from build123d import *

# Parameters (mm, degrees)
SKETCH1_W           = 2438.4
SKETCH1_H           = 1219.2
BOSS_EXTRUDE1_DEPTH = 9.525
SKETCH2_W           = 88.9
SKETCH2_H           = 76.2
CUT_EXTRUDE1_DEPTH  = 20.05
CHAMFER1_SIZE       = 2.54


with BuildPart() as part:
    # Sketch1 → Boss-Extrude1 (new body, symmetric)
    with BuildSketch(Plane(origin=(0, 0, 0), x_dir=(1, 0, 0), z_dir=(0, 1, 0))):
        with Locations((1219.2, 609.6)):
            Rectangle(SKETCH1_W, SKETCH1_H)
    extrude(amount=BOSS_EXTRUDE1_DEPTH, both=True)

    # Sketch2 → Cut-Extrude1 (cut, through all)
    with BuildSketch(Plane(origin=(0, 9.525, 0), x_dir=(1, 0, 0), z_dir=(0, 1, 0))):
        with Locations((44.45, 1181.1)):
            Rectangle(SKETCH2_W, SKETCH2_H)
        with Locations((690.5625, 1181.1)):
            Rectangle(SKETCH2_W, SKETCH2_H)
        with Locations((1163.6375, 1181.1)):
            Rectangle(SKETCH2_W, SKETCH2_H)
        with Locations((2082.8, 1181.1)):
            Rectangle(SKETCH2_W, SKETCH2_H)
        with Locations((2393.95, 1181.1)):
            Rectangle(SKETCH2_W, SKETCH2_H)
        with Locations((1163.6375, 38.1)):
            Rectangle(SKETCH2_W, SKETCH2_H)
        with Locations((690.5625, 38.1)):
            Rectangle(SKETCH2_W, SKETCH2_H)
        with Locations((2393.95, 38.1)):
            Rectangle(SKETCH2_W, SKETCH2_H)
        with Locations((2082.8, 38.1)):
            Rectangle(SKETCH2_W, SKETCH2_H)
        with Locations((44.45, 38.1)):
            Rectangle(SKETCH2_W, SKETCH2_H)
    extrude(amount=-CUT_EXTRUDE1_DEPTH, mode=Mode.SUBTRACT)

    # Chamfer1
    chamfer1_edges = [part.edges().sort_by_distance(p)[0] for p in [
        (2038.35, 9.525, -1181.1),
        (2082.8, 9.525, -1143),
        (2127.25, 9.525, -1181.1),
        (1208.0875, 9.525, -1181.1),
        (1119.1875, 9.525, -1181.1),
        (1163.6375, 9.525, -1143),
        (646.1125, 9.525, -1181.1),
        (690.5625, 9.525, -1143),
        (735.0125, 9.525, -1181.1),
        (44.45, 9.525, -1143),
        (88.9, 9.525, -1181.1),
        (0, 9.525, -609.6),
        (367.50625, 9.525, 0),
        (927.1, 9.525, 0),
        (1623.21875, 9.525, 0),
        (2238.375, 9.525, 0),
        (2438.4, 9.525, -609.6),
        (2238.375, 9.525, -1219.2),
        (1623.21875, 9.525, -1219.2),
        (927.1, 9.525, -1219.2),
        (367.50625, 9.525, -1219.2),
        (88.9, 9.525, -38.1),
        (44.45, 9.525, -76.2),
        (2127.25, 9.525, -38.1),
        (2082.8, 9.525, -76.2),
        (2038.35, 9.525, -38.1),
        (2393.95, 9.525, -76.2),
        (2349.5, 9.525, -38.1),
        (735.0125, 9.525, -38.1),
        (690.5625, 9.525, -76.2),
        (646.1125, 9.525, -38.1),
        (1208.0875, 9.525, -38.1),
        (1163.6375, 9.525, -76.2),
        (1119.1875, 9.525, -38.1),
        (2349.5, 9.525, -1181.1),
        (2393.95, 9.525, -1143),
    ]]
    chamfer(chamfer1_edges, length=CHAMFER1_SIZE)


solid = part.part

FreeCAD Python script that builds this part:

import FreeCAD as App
import Part
import Sketcher

V = App.Vector
Q = App.Units.Quantity


def edges_at(feature, points):
    """Names of the edges that pass closest to the given points."""
    edges = feature.Shape.Edges
    near = lambda p: min(range(len(edges)), key=lambda i: edges[i].distToShape(Part.Vertex(*p))[0])
    return sorted({f"Edge{near(p) + 1}" for p in points})

doc = App.newDocument("Part")
body = doc.addObject("PartDesign::Body", "Body")

# Sketch on XZ plane
sketch1 = body.newObject("Sketcher::SketchObject", "Sketch")
sketch1.AttachmentSupport = (doc.getObject("XZ_Plane"), [""])
sketch1.MapMode = "FlatFace"
sketch1.addGeometry(Part.LineSegment(V(0, -1219, 0), V(0, 0, 0)), False)
sketch1.addGeometry(Part.LineSegment(V(0, 0, 0), V(2438, 0, 0)), False)
sketch1.addGeometry(Part.LineSegment(V(2438, 0, 0), V(2438, -1219, 0)), False)
sketch1.addGeometry(Part.LineSegment(V(2438, -1219, 0), V(0, -1219, 0)), False)
sketch1.addConstraint(Sketcher.Constraint("Coincident", 0, 2, 1, 1))
sketch1.addConstraint(Sketcher.Constraint("Coincident", 1, 2, 2, 1))
sketch1.addConstraint(Sketcher.Constraint("Coincident", 2, 2, 3, 1))
sketch1.addConstraint(Sketcher.Constraint("Coincident", 3, 2, 0, 1))
sketch1.addConstraint(Sketcher.Constraint("Vertical", 0))
sketch1.addConstraint(Sketcher.Constraint("Horizontal", 1))
sketch1.addConstraint(Sketcher.Constraint("Vertical", 2))
sketch1.addConstraint(Sketcher.Constraint("Horizontal", 3))
sketch1.addConstraint(Sketcher.Constraint("Coincident", 0, 2, -1, 1))
sketch1.addConstraint(Sketcher.Constraint("DistanceX", 1, 1, 1, 2, Q("96 in")))
sketch1.addConstraint(Sketcher.Constraint("DistanceY", 0, 1, 0, 2, Q("48 in")))
pad1 = body.newObject("PartDesign::Pad", "Pad")
pad1.Profile = sketch1
pad1.Length = Q("0.75 in")
pad1.Midplane = True

# Sketch on XZ plane
sketch2 = body.newObject("Sketcher::SketchObject", "Sketch001")
sketch2.AttachmentSupport = (doc.getObject("XZ_Plane"), [""])
sketch2.MapMode = "FlatFace"
sketch2.AttachmentOffset = App.Placement(V(0, 0, -0.375 * 25.4), App.Rotation())
sketch2.addGeometry(Part.LineSegment(V(0, -1219, 0), V(0, -1143, 0)), False)
sketch2.addGeometry(Part.LineSegment(V(0, -1143, 0), V(89, -1143, 0)), False)
sketch2.addGeometry(Part.LineSegment(V(89, -1143, 0), V(89, -1219, 0)), False)
sketch2.addGeometry(Part.LineSegment(V(89, -1219, 0), V(0, -1219, 0)), False)
sketch2.addGeometry(Part.LineSegment(V(646, -1219, 0), V(646, -1143, 0)), False)
sketch2.addGeometry(Part.LineSegment(V(646, -1143, 0), V(735, -1143, 0)), False)
sketch2.addGeometry(Part.LineSegment(V(735, -1143, 0), V(735, -1219, 0)), False)
sketch2.addGeometry(Part.LineSegment(V(735, -1219, 0), V(646, -1219, 0)), False)
sketch2.addGeometry(Part.LineSegment(V(1119, -1219, 0), V(1119, -1143, 0)), False)
sketch2.addGeometry(Part.LineSegment(V(1119, -1143, 0), V(1208, -1143, 0)), False)
sketch2.addGeometry(Part.LineSegment(V(1208, -1143, 0), V(1208, -1219, 0)), False)
sketch2.addGeometry(Part.LineSegment(V(1208, -1219, 0), V(1119, -1219, 0)), False)
sketch2.addGeometry(Part.LineSegment(V(2038, -1219, 0), V(2038, -1143, 0)), False)
sketch2.addGeometry(Part.LineSegment(V(2038, -1143, 0), V(2127, -1143, 0)), False)
sketch2.addGeometry(Part.LineSegment(V(2127, -1143, 0), V(2127, -1219, 0)), False)
sketch2.addGeometry(Part.LineSegment(V(2127, -1219, 0), V(2038, -1219, 0)), False)
sketch2.addGeometry(Part.LineSegment(V(2350, -1219, 0), V(2350, -1143, 0)), False)
sketch2.addGeometry(Part.LineSegment(V(2350, -1143, 0), V(2438, -1143, 0)), False)
sketch2.addGeometry(Part.LineSegment(V(2438, -1143, 0), V(2438, -1219, 0)), False)
sketch2.addGeometry(Part.LineSegment(V(2438, -1219, 0), V(2350, -1219, 0)), False)
sketch2.addGeometry(Part.LineSegment(V(1119, -76, 0), V(1119, 0, 0)), False)
sketch2.addGeometry(Part.LineSegment(V(1119, 0, 0), V(1208, 0, 0)), False)
sketch2.addGeometry(Part.LineSegment(V(1208, 0, 0), V(1208, -76, 0)), False)
sketch2.addGeometry(Part.LineSegment(V(1208, -76, 0), V(1119, -76, 0)), False)
sketch2.addGeometry(Part.LineSegment(V(646, -76, 0), V(646, 0, 0)), False)
sketch2.addGeometry(Part.LineSegment(V(646, 0, 0), V(735, 0, 0)), False)
sketch2.addGeometry(Part.LineSegment(V(735, 0, 0), V(735, -76, 0)), False)
sketch2.addGeometry(Part.LineSegment(V(735, -76, 0), V(646, -76, 0)), False)
sketch2.addGeometry(Part.LineSegment(V(2350, -76, 0), V(2350, 0, 0)), False)
sketch2.addGeometry(Part.LineSegment(V(2350, 0, 0), V(2438, 0, 0)), False)
sketch2.addGeometry(Part.LineSegment(V(2438, 0, 0), V(2438, -76, 0)), False)
sketch2.addGeometry(Part.LineSegment(V(2438, -76, 0), V(2350, -76, 0)), False)
sketch2.addGeometry(Part.LineSegment(V(2038, -76, 0), V(2038, 0, 0)), False)
sketch2.addGeometry(Part.LineSegment(V(2038, 0, 0), V(2127, 0, 0)), False)
sketch2.addGeometry(Part.LineSegment(V(2127, 0, 0), V(2127, -76, 0)), False)
sketch2.addGeometry(Part.LineSegment(V(2127, -76, 0), V(2038, -76, 0)), False)
sketch2.addGeometry(Part.LineSegment(V(0, -76, 0), V(0, 0, 0)), False)
sketch2.addGeometry(Part.LineSegment(V(0, 0, 0), V(89, 0, 0)), False)
sketch2.addGeometry(Part.LineSegment(V(89, 0, 0), V(89, -76, 0)), False)
sketch2.addGeometry(Part.LineSegment(V(89, -76, 0), V(0, -76, 0)), False)
sketch2.addConstraint(Sketcher.Constraint("Coincident", 0, 2, 1, 1))
sketch2.addConstraint(Sketcher.Constraint("Coincident", 1, 2, 2, 1))
sketch2.addConstraint(Sketcher.Constraint("Coincident", 2, 2, 3, 1))
sketch2.addConstraint(Sketcher.Constraint("Coincident", 3, 2, 0, 1))
sketch2.addConstraint(Sketcher.Constraint("Coincident", 4, 2, 5, 1))
sketch2.addConstraint(Sketcher.Constraint("Coincident", 5, 2, 6, 1))
sketch2.addConstraint(Sketcher.Constraint("Coincident", 6, 2, 7, 1))
sketch2.addConstraint(Sketcher.Constraint("Coincident", 7, 2, 4, 1))
sketch2.addConstraint(Sketcher.Constraint("Coincident", 8, 2, 9, 1))
sketch2.addConstraint(Sketcher.Constraint("Coincident", 9, 2, 10, 1))
sketch2.addConstraint(Sketcher.Constraint("Coincident", 10, 2, 11, 1))
sketch2.addConstraint(Sketcher.Constraint("Coincident", 11, 2, 8, 1))
sketch2.addConstraint(Sketcher.Constraint("Coincident", 12, 2, 13, 1))
sketch2.addConstraint(Sketcher.Constraint("Coincident", 13, 2, 14, 1))
sketch2.addConstraint(Sketcher.Constraint("Coincident", 14, 2, 15, 1))
sketch2.addConstraint(Sketcher.Constraint("Coincident", 15, 2, 12, 1))
sketch2.addConstraint(Sketcher.Constraint("Coincident", 16, 2, 17, 1))
sketch2.addConstraint(Sketcher.Constraint("Coincident", 17, 2, 18, 1))
sketch2.addConstraint(Sketcher.Constraint("Coincident", 18, 2, 19, 1))
sketch2.addConstraint(Sketcher.Constraint("Coincident", 19, 2, 16, 1))
sketch2.addConstraint(Sketcher.Constraint("Coincident", 20, 2, 21, 1))
sketch2.addConstraint(Sketcher.Constraint("Coincident", 21, 2, 22, 1))
sketch2.addConstraint(Sketcher.Constraint("Coincident", 22, 2, 23, 1))
sketch2.addConstraint(Sketcher.Constraint("Coincident", 23, 2, 20, 1))
sketch2.addConstraint(Sketcher.Constraint("Coincident", 24, 2, 25, 1))
sketch2.addConstraint(Sketcher.Constraint("Coincident", 25, 2, 26, 1))
sketch2.addConstraint(Sketcher.Constraint("Coincident", 26, 2, 27, 1))
sketch2.addConstraint(Sketcher.Constraint("Coincident", 27, 2, 24, 1))
sketch2.addConstraint(Sketcher.Constraint("Coincident", 28, 2, 29, 1))
sketch2.addConstraint(Sketcher.Constraint("Coincident", 29, 2, 30, 1))
sketch2.addConstraint(Sketcher.Constraint("Coincident", 30, 2, 31, 1))
sketch2.addConstraint(Sketcher.Constraint("Coincident", 31, 2, 28, 1))
sketch2.addConstraint(Sketcher.Constraint("Coincident", 32, 2, 33, 1))
sketch2.addConstraint(Sketcher.Constraint("Coincident", 33, 2, 34, 1))
sketch2.addConstraint(Sketcher.Constraint("Coincident", 34, 2, 35, 1))
sketch2.addConstraint(Sketcher.Constraint("Coincident", 35, 2, 32, 1))
sketch2.addConstraint(Sketcher.Constraint("Coincident", 36, 2, 37, 1))
sketch2.addConstraint(Sketcher.Constraint("Coincident", 37, 2, 38, 1))
sketch2.addConstraint(Sketcher.Constraint("Coincident", 38, 2, 39, 1))
sketch2.addConstraint(Sketcher.Constraint("Coincident", 39, 2, 36, 1))
sketch2.addConstraint(Sketcher.Constraint("Vertical", 0))
sketch2.addConstraint(Sketcher.Constraint("Horizontal", 1))
sketch2.addConstraint(Sketcher.Constraint("Vertical", 2))
sketch2.addConstraint(Sketcher.Constraint("Horizontal", 3))
sketch2.addConstraint(Sketcher.Constraint("Vertical", 4))
sketch2.addConstraint(Sketcher.Constraint("Horizontal", 5))
sketch2.addConstraint(Sketcher.Constraint("Vertical", 6))
sketch2.addConstraint(Sketcher.Constraint("Horizontal", 7))
sketch2.addConstraint(Sketcher.Constraint("Vertical", 8))
sketch2.addConstraint(Sketcher.Constraint("Horizontal", 9))
sketch2.addConstraint(Sketcher.Constraint("Vertical", 10))
sketch2.addConstraint(Sketcher.Constraint("Horizontal", 11))
sketch2.addConstraint(Sketcher.Constraint("Vertical", 12))
sketch2.addConstraint(Sketcher.Constraint("Horizontal", 13))
sketch2.addConstraint(Sketcher.Constraint("Vertical", 14))
sketch2.addConstraint(Sketcher.Constraint("Horizontal", 15))
sketch2.addConstraint(Sketcher.Constraint("Vertical", 16))
sketch2.addConstraint(Sketcher.Constraint("Horizontal", 17))
sketch2.addConstraint(Sketcher.Constraint("Vertical", 18))
sketch2.addConstraint(Sketcher.Constraint("Horizontal", 19))
sketch2.addConstraint(Sketcher.Constraint("Vertical", 20))
sketch2.addConstraint(Sketcher.Constraint("Horizontal", 21))
sketch2.addConstraint(Sketcher.Constraint("Vertical", 22))
sketch2.addConstraint(Sketcher.Constraint("Horizontal", 23))
sketch2.addConstraint(Sketcher.Constraint("Vertical", 24))
sketch2.addConstraint(Sketcher.Constraint("Horizontal", 25))
sketch2.addConstraint(Sketcher.Constraint("Vertical", 26))
sketch2.addConstraint(Sketcher.Constraint("Horizontal", 27))
sketch2.addConstraint(Sketcher.Constraint("Vertical", 28))
sketch2.addConstraint(Sketcher.Constraint("Horizontal", 29))
sketch2.addConstraint(Sketcher.Constraint("Vertical", 30))
sketch2.addConstraint(Sketcher.Constraint("Horizontal", 31))
sketch2.addConstraint(Sketcher.Constraint("Vertical", 32))
sketch2.addConstraint(Sketcher.Constraint("Horizontal", 33))
sketch2.addConstraint(Sketcher.Constraint("Vertical", 34))
sketch2.addConstraint(Sketcher.Constraint("Horizontal", 35))
sketch2.addConstraint(Sketcher.Constraint("Vertical", 36))
sketch2.addConstraint(Sketcher.Constraint("Horizontal", 37))
sketch2.addConstraint(Sketcher.Constraint("Vertical", 38))
sketch2.addConstraint(Sketcher.Constraint("Horizontal", 39))
sketch2.addConstraint(Sketcher.Constraint("Coincident", 36, 2, -1, 1))
sketch2.addConstraint(Sketcher.Constraint("PointOnObject", 0, 2, -2))
sketch2.addConstraint(Sketcher.Constraint("PointOnObject", 20, 2, -1))
sketch2.addConstraint(Sketcher.Constraint("PointOnObject", 24, 2, -1))
sketch2.addConstraint(Sketcher.Constraint("PointOnObject", 28, 2, -1))
sketch2.addConstraint(Sketcher.Constraint("PointOnObject", 32, 2, -1))
sketch2.addConstraint(Sketcher.Constraint("Horizontal", 1, 2, 4, 2))
sketch2.addConstraint(Sketcher.Constraint("Horizontal", 3, 2, 6, 2))
sketch2.addConstraint(Sketcher.Constraint("Horizontal", 5, 2, 8, 2))
sketch2.addConstraint(Sketcher.Constraint("Horizontal", 7, 2, 10, 2))
sketch2.addConstraint(Sketcher.Constraint("Horizontal", 9, 2, 12, 2))
sketch2.addConstraint(Sketcher.Constraint("Horizontal", 11, 2, 14, 2))
sketch2.addConstraint(Sketcher.Constraint("Horizontal", 13, 2, 16, 2))
sketch2.addConstraint(Sketcher.Constraint("Horizontal", 15, 2, 18, 2))
sketch2.addConstraint(Sketcher.Constraint("Horizontal", 23, 2, 26, 2))
sketch2.addConstraint(Sketcher.Constraint("Horizontal", 27, 2, 30, 2))
sketch2.addConstraint(Sketcher.Constraint("Horizontal", 31, 2, 34, 2))
sketch2.addConstraint(Sketcher.Constraint("Horizontal", 35, 2, 38, 2))
sketch2.addConstraint(Sketcher.Constraint("Vertical", 11, 2, 20, 2))
sketch2.addConstraint(Sketcher.Constraint("Vertical", 10, 2, 21, 2))
sketch2.addConstraint(Sketcher.Constraint("Vertical", 7, 2, 24, 2))
sketch2.addConstraint(Sketcher.Constraint("Vertical", 6, 2, 25, 2))
sketch2.addConstraint(Sketcher.Constraint("Vertical", 19, 2, 28, 2))
sketch2.addConstraint(Sketcher.Constraint("Vertical", 18, 2, 29, 2))
sketch2.addConstraint(Sketcher.Constraint("Vertical", 15, 2, 32, 2))
sketch2.addConstraint(Sketcher.Constraint("Vertical", 14, 2, 33, 2))
sketch2.addConstraint(Sketcher.Constraint("Vertical", 2, 2, 37, 2))
sketch2.addConstraint(Sketcher.Constraint("Equal", 3, 5))
sketch2.addConstraint(Sketcher.Constraint("Equal", 7, 9))
sketch2.addConstraint(Sketcher.Constraint("Equal", 11, 13))
sketch2.addConstraint(Sketcher.Constraint("Equal", 15, 17))
sketch2.addConstraint(Sketcher.Constraint("Equal", 18, 20))
sketch2.addConstraint(Sketcher.Constraint("DistanceY", 0, 1, 0, 2, Q("3 in")))
sketch2.addConstraint(Sketcher.Constraint("DistanceX", 1, 1, 1, 2, Q("3.5 in")))
sketch2.addConstraint(Sketcher.Constraint("DistanceY", 0, 2, -1, 1, Q("45 in")))
sketch2.addConstraint(Sketcher.Constraint("DistanceX", -1, 1, 17, 2, Q("96 in")))
sketch2.addConstraint(Sketcher.Constraint("DistanceX", -1, 1, 12, 2, Q("80.25 in")))
sketch2.addConstraint(Sketcher.Constraint("DistanceX", -1, 1, 4, 2, Q("25.4375 in")))
sketch2.addConstraint(Sketcher.Constraint("DistanceX", -1, 1, 8, 2, Q("44.0625 in")))
pocket1 = body.newObject("PartDesign::Pocket", "Pocket")
pocket1.Profile = sketch2
pocket1.Type = "ThroughAll"
pocket1.Reversed = True
doc.recompute()

chamfer = body.newObject("PartDesign::Chamfer", "Chamfer")
chamfer.Base = (pocket1, edges_at(pocket1, [
    (2038.35, 9.525, -1181.1),
    (2082.8, 9.525, -1143),
    (2127.25, 9.525, -1181.1),
    (1208.088, 9.525, -1181.1),
    (1119.188, 9.525, -1181.1),
    (1163.638, 9.525, -1143),
    (646.112, 9.525, -1181.1),
    (690.562, 9.525, -1143),
    (735.013, 9.525, -1181.1),
    (44.45, 9.525, -1143),
    (88.9, 9.525, -1181.1),
    (0, 9.525, -609.6),
    (367.506, 9.525, 0),
    (927.1, 9.525, 0),
    (1623.219, 9.525, 0),
    (2238.375, 9.525, 0),
    (2438.4, 9.525, -609.6),
    (2238.375, 9.525, -1219.2),
    (1623.219, 9.525, -1219.2),
    (927.1, 9.525, -1219.2),
    (367.506, 9.525, -1219.2),
    (88.9, 9.525, -38.1),
    (44.45, 9.525, -76.2),
    (2127.25, 9.525, -38.1),
    (2082.8, 9.525, -76.2),
    (2038.35, 9.525, -38.1),
    (2393.95, 9.525, -76.2),
    (2349.5, 9.525, -38.1),
    (735.013, 9.525, -38.1),
    (690.562, 9.525, -76.2),
    (646.112, 9.525, -38.1),
    (1208.088, 9.525, -38.1),
    (1163.638, 9.525, -76.2),
    (1119.188, 9.525, -38.1),
    (2349.5, 9.525, -1181.1),
    (2393.95, 9.525, -1143),
]))
chamfer.Size = Q("0.1 in")

doc.recompute()
